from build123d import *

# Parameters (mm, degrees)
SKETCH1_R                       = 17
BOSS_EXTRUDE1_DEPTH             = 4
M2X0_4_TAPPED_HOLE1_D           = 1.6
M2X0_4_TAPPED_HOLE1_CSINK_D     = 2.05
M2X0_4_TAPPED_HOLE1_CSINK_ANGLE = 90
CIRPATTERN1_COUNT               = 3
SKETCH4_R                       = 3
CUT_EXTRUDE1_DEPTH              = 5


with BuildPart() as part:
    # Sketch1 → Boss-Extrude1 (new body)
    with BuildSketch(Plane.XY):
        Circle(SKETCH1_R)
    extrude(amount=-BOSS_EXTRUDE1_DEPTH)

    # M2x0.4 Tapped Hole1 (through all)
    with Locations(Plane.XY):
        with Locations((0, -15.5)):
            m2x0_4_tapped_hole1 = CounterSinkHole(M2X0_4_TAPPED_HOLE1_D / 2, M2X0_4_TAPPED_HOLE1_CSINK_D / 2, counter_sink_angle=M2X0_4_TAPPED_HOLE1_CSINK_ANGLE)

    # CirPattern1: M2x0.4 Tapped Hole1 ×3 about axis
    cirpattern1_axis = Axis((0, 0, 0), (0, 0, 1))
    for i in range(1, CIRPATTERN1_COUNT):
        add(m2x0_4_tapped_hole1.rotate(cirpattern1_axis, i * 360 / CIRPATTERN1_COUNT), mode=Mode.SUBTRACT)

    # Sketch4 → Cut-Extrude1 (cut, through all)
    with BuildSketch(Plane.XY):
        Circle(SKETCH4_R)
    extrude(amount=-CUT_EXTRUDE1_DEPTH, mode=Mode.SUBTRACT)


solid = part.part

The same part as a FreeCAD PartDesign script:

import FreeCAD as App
import Part
import Sketcher

V = App.Vector

doc = App.newDocument("Part")
params = doc.addObject("Spreadsheet::Sheet", "Params")
for row, (alias, value) in enumerate([
    ("sketch1_diameter", "34 mm"),
    ("pad1_length", "4 mm"),
    ("sketch2_diameter", "1.6 mm"),
    ("hole_diameter", "1.6 mm"),
    ("hole_csink_diameter", "2.05 mm"),
    ("sketch3_diameter", "6 mm"),
], start=1):
    params.set(f"A{row}", alias)
    params.set(f"B{row}", "=" + value)
    params.setAlias(f"B{row}", alias)

body = doc.addObject("PartDesign::Body", "Body")

sketch1 = body.newObject("Sketcher::SketchObject", "Sketch")
sketch1.AttachmentSupport = (doc.getObject("XY_Plane"), [""])
sketch1.MapMode = "FlatFace"
sketch1.addGeometry(Part.Circle(V(0, 0, 0), V(0, 0, 1), 17), False)
sketch1.addConstraint([
    Sketcher.Constraint("Coincident", 0, 3, -1, 1),
    Sketcher.Constraint("Diameter", 0, 34.0),
])
sketch1.setExpression("Constraints[1]", "Params.sketch1_diameter")
pad1 = body.newObject("PartDesign::Pad", "Pad")
pad1.Profile = sketch1
pad1.setExpression("Length", "Params.pad1_length")
pad1.Reversed = True

sketch2 = body.newObject("Sketcher::SketchObject", "Sketch001")
sketch2.AttachmentSupport = (doc.getObject("XY_Plane"), [""])
sketch2.MapMode = "FlatFace"
sketch2.addGeometry(Part.Circle(V(0, -15.5, 0), V(0, 0, 1), 0.8), False)
sketch2.addConstraint([
    Sketcher.Constraint("PointOnObject", 0, 3, -2),
    Sketcher.Constraint("Diameter", 0, 1.6),
    Sketcher.Constraint("DistanceY", 0, 3, -1, 1, 15.5),
])
sketch2.setExpression("Constraints[1]", "Params.sketch2_diameter")
doc.recompute()
hole = body.newObject("PartDesign::Hole", "Hole")
hole.Profile = sketch2
hole.ThreadType = "None"
hole.setExpression("Diameter", "Params.hole_diameter")
hole.DepthType = "ThroughAll"
hole.HoleCutType = "Countersink"
hole.setExpression("HoleCutDiameter", "Params.hole_csink_diameter")
hole.HoleCutCountersinkAngle = 90
doc.recompute()

polarpattern = body.newObject("PartDesign::PolarPattern", "PolarPattern")
polarpattern.Originals = [hole]
polarpattern.Axis = (doc.getObject("Z_Axis"), [""])
polarpattern.Angle = 360
polarpattern.Occurrences = 3
body.Tip = polarpattern

sketch3 = body.newObject("Sketcher::SketchObject", "Sketch002")
sketch3.AttachmentSupport = (doc.getObject("XY_Plane"), [""])
sketch3.MapMode = "FlatFace"
sketch3.addGeometry(Part.Circle(V(0, 0, 0), V(0, 0, 1), 3), False)
sketch3.addConstraint([
    Sketcher.Constraint("Coincident", 0, 3, -1, 1),
    Sketcher.Constraint("Diameter", 0, 6.0),
])
sketch3.setExpression("Constraints[1]", "Params.sketch3_diameter")
pocket1 = body.newObject("PartDesign::Pocket", "Pocket")
pocket1.Profile = sketch3
pocket1.Type = "ThroughAll"

doc.recompute()
